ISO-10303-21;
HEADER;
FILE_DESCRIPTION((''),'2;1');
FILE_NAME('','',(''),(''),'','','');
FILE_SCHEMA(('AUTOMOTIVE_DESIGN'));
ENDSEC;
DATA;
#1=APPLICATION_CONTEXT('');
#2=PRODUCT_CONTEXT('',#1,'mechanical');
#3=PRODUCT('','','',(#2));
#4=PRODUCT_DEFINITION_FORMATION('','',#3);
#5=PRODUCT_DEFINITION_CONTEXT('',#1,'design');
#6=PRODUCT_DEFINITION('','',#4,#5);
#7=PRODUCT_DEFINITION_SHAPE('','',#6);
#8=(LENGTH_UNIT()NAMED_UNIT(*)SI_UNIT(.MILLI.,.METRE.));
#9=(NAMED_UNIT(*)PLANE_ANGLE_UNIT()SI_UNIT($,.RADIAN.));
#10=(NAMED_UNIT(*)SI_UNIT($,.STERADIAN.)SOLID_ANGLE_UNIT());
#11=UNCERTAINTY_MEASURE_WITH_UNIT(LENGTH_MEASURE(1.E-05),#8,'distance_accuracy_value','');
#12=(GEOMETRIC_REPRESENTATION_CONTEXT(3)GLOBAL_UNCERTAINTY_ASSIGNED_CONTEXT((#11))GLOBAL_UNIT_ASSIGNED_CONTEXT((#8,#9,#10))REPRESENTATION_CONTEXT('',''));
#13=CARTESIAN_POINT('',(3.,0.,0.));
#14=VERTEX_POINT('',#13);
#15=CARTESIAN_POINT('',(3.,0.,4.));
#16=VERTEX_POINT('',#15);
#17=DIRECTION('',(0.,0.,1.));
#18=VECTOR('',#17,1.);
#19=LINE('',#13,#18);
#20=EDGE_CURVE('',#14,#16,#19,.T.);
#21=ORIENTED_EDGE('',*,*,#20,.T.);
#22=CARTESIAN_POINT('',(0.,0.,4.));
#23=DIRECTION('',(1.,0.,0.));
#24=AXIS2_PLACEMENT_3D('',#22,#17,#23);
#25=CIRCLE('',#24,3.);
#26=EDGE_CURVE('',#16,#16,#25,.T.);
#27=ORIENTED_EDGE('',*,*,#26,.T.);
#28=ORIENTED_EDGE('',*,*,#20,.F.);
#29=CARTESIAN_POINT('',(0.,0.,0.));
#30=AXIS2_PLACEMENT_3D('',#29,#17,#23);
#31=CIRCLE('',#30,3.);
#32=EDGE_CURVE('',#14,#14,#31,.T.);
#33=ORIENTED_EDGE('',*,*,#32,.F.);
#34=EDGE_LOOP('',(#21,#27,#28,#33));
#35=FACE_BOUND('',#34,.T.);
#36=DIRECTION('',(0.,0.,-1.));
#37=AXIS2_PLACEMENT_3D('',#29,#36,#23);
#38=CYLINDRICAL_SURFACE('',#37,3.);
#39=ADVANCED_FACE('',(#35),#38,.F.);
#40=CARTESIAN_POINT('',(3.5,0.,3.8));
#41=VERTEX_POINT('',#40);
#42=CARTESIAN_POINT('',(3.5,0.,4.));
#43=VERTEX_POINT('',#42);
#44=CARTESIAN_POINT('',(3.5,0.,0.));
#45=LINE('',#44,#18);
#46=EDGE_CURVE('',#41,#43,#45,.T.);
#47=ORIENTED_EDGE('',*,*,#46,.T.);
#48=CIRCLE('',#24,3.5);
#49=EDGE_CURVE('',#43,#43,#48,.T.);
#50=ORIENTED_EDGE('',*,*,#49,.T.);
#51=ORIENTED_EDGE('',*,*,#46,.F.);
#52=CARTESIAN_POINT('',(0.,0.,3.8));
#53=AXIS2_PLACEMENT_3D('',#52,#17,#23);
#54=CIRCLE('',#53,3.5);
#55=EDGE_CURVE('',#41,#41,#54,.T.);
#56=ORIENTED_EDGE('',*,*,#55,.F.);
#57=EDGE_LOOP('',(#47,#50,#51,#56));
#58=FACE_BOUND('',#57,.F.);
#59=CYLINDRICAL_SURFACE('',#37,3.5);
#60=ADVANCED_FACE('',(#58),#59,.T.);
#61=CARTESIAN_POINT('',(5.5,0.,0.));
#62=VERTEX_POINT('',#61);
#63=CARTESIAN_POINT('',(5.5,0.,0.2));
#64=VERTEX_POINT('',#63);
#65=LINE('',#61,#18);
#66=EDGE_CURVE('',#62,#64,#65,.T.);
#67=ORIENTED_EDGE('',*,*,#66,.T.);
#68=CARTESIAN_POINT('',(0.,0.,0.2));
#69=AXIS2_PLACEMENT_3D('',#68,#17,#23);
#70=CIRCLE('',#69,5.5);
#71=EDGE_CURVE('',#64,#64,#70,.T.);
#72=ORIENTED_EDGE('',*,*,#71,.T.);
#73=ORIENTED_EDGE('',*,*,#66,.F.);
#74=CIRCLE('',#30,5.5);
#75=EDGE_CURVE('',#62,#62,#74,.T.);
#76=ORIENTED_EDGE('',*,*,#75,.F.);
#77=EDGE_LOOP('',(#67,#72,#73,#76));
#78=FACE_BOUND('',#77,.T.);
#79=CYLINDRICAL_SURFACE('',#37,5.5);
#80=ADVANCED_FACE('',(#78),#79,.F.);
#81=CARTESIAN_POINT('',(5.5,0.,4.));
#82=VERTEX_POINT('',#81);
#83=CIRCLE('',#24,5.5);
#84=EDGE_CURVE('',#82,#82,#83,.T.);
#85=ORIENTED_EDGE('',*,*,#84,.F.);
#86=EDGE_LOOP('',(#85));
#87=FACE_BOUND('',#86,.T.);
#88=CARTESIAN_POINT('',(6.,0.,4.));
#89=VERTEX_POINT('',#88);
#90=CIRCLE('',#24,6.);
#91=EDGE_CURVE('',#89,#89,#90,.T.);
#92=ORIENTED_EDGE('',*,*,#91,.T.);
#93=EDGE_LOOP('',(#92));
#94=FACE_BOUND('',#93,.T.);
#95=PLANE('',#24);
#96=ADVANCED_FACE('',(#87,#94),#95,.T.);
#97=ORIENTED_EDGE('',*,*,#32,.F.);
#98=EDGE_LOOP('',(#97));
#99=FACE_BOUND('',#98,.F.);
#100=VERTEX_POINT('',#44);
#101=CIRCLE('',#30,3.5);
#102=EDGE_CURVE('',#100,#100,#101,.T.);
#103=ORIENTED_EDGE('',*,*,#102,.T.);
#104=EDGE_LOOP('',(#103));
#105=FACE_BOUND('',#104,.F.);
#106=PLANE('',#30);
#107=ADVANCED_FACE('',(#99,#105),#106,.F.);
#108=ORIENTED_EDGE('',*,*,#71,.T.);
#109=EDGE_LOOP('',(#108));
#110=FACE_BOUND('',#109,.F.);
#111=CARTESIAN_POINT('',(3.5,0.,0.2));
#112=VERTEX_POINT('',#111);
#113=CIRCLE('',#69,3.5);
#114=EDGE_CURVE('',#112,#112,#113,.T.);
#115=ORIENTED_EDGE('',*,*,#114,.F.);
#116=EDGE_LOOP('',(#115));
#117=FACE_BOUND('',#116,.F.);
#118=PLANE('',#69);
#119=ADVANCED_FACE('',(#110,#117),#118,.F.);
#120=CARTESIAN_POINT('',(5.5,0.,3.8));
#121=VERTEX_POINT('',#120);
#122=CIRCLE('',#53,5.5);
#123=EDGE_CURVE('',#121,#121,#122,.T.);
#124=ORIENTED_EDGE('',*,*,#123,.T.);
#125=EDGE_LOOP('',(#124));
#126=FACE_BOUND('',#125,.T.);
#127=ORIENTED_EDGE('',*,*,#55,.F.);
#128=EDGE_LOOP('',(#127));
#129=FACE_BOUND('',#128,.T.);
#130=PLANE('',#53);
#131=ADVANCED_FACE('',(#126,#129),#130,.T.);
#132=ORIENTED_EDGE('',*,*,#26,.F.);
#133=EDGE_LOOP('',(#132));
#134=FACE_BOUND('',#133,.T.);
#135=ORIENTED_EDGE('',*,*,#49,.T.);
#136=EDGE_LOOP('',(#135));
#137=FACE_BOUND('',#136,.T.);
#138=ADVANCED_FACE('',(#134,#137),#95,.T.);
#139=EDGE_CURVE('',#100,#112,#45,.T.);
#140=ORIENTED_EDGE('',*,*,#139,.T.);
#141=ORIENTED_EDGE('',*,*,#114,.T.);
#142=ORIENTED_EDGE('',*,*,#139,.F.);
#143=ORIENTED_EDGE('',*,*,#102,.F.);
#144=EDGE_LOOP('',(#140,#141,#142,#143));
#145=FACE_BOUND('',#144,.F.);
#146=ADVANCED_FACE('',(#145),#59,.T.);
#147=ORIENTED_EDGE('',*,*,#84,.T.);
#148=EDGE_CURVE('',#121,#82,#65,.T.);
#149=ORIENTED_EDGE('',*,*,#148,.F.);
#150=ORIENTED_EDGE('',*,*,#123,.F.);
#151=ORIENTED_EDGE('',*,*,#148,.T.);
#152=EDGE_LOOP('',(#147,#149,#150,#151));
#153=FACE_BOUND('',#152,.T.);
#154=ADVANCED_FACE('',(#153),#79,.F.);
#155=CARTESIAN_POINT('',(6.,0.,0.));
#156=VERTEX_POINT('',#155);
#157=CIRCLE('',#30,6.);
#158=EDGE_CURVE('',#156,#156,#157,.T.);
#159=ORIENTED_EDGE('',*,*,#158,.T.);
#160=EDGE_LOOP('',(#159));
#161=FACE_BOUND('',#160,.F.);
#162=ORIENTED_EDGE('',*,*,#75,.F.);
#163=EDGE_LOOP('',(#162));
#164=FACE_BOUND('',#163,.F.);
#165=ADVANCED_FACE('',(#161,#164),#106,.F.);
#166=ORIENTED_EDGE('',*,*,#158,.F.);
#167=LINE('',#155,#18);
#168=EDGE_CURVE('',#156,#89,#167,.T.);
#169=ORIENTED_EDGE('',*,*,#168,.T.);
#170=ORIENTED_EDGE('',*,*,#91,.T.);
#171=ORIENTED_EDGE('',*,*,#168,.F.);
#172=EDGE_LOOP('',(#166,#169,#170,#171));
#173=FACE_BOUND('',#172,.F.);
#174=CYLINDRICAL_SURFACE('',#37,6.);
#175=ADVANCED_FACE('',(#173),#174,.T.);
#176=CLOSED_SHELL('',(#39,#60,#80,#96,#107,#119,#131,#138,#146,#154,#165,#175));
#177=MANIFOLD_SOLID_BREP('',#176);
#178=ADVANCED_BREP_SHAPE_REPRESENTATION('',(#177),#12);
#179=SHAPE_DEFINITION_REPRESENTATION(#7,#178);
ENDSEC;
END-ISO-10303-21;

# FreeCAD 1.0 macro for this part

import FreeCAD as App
import Part
import Sketcher
Q = App.Units.Quantity

doc = App.newDocument("Part")
params = doc.addObject("Spreadsheet::Sheet", "Params")
for row, (alias, value) in enumerate([
    ("sketch1_diameter", "12 mm"),
    ("sketch1_diameter2", "6 mm"),
    ("sketch1_diameter3", "11 mm"),
    ("sketch1_diameter4", "7 mm"),
    ("pad1_length", "4 mm"),
    ("sketch2_diameter", "11 mm"),
    ("sketch2_diameter2", "7 mm"),
    ("pad2_length", "3.6 mm"),
], start=1):
    params.set(f"A{row}", alias)
    params.set(f"B{row}", "=" + value)
    params.setAlias(f"B{row}", alias)

body = doc.addObject("PartDesign::Body", "Body")
body.AllowCompound = True

sketch1 = body.newObject("Sketcher::SketchObject", "Sketch")
sketch1.AttachmentSupport = (doc.getObject("XY_Plane"), [""])
sketch1.MapMode = "FlatFace"
sketch1.addGeometry([
    Part.Circle(App.Vector(0, 0, 0), App.Vector(0, 0, 1), 6),
    Part.Circle(App.Vector(0, 0, 0), App.Vector(0, 0, 1), 5.5),
    Part.Circle(App.Vector(0, 0, 0), App.Vector(0, 0, 1), 3.5),
    Part.Circle(App.Vector(0, 0, 0), App.Vector(0, 0, 1), 3),
], False)
sketch1.addConstraint([
    Sketcher.Constraint("Coincident", 0, 3, -1, 1),
    Sketcher.Constraint("Coincident", 1, 3, -1, 1),
    Sketcher.Constraint("Coincident", 2, 3, -1, 1),
    Sketcher.Constraint("Coincident", 3, 3, -1, 1),
    Sketcher.Constraint("Diameter", 0, Q("12 mm")),
    Sketcher.Constraint("Diameter", 3, Q("6 mm")),
    Sketcher.Constraint("Diameter", 1, Q("11 mm")),
    Sketcher.Constraint("Diameter", 2, Q("7 mm")),
])
sketch1.setExpression("Constraints[4]", "Params.sketch1_diameter")
sketch1.setExpression("Constraints[5]", "Params.sketch1_diameter2")
sketch1.setExpression("Constraints[6]", "Params.sketch1_diameter3")
sketch1.setExpression("Constraints[7]", "Params.sketch1_diameter4")
pad1 = body.newObject("PartDesign::Pad", "Pad")
pad1.Profile = sketch1
pad1.setExpression("Length", "Params.pad1_length")

sketch2 = body.newObject("Sketcher::SketchObject", "Sketch001")
sketch2.AttachmentSupport = (doc.getObject("XY_Plane"), [""])
sketch2.MapMode = "FlatFace"
sketch2.AttachmentOffset = App.Placement(App.Vector(0, 0, 0.2), App.Rotation())
sketch2.addGeometry([
    Part.Circle(App.Vector(0, 0, 0), App.Vector(0, 0, 1), 5.5),
    Part.Circle(App.Vector(0, 0, 0), App.Vector(0, 0, 1), 3.5),
], False)
sketch2.addConstraint([
    Sketcher.Constraint("Coincident", 0, 3, -1, 1),
    Sketcher.Constraint("Coincident", 1, 3, -1, 1),
    Sketcher.Constraint("Diameter", 0, Q("11 mm")),
    Sketcher.Constraint("Diameter", 1, Q("7 mm")),
])
sketch2.setExpression("Constraints[2]", "Params.sketch2_diameter")
sketch2.setExpression("Constraints[3]", "Params.sketch2_diameter2")
pad2 = body.newObject("PartDesign::Pad", "Pad001")
pad2.Profile = sketch2
pad2.setExpression("Length", "Params.pad2_length")

doc.recompute()
